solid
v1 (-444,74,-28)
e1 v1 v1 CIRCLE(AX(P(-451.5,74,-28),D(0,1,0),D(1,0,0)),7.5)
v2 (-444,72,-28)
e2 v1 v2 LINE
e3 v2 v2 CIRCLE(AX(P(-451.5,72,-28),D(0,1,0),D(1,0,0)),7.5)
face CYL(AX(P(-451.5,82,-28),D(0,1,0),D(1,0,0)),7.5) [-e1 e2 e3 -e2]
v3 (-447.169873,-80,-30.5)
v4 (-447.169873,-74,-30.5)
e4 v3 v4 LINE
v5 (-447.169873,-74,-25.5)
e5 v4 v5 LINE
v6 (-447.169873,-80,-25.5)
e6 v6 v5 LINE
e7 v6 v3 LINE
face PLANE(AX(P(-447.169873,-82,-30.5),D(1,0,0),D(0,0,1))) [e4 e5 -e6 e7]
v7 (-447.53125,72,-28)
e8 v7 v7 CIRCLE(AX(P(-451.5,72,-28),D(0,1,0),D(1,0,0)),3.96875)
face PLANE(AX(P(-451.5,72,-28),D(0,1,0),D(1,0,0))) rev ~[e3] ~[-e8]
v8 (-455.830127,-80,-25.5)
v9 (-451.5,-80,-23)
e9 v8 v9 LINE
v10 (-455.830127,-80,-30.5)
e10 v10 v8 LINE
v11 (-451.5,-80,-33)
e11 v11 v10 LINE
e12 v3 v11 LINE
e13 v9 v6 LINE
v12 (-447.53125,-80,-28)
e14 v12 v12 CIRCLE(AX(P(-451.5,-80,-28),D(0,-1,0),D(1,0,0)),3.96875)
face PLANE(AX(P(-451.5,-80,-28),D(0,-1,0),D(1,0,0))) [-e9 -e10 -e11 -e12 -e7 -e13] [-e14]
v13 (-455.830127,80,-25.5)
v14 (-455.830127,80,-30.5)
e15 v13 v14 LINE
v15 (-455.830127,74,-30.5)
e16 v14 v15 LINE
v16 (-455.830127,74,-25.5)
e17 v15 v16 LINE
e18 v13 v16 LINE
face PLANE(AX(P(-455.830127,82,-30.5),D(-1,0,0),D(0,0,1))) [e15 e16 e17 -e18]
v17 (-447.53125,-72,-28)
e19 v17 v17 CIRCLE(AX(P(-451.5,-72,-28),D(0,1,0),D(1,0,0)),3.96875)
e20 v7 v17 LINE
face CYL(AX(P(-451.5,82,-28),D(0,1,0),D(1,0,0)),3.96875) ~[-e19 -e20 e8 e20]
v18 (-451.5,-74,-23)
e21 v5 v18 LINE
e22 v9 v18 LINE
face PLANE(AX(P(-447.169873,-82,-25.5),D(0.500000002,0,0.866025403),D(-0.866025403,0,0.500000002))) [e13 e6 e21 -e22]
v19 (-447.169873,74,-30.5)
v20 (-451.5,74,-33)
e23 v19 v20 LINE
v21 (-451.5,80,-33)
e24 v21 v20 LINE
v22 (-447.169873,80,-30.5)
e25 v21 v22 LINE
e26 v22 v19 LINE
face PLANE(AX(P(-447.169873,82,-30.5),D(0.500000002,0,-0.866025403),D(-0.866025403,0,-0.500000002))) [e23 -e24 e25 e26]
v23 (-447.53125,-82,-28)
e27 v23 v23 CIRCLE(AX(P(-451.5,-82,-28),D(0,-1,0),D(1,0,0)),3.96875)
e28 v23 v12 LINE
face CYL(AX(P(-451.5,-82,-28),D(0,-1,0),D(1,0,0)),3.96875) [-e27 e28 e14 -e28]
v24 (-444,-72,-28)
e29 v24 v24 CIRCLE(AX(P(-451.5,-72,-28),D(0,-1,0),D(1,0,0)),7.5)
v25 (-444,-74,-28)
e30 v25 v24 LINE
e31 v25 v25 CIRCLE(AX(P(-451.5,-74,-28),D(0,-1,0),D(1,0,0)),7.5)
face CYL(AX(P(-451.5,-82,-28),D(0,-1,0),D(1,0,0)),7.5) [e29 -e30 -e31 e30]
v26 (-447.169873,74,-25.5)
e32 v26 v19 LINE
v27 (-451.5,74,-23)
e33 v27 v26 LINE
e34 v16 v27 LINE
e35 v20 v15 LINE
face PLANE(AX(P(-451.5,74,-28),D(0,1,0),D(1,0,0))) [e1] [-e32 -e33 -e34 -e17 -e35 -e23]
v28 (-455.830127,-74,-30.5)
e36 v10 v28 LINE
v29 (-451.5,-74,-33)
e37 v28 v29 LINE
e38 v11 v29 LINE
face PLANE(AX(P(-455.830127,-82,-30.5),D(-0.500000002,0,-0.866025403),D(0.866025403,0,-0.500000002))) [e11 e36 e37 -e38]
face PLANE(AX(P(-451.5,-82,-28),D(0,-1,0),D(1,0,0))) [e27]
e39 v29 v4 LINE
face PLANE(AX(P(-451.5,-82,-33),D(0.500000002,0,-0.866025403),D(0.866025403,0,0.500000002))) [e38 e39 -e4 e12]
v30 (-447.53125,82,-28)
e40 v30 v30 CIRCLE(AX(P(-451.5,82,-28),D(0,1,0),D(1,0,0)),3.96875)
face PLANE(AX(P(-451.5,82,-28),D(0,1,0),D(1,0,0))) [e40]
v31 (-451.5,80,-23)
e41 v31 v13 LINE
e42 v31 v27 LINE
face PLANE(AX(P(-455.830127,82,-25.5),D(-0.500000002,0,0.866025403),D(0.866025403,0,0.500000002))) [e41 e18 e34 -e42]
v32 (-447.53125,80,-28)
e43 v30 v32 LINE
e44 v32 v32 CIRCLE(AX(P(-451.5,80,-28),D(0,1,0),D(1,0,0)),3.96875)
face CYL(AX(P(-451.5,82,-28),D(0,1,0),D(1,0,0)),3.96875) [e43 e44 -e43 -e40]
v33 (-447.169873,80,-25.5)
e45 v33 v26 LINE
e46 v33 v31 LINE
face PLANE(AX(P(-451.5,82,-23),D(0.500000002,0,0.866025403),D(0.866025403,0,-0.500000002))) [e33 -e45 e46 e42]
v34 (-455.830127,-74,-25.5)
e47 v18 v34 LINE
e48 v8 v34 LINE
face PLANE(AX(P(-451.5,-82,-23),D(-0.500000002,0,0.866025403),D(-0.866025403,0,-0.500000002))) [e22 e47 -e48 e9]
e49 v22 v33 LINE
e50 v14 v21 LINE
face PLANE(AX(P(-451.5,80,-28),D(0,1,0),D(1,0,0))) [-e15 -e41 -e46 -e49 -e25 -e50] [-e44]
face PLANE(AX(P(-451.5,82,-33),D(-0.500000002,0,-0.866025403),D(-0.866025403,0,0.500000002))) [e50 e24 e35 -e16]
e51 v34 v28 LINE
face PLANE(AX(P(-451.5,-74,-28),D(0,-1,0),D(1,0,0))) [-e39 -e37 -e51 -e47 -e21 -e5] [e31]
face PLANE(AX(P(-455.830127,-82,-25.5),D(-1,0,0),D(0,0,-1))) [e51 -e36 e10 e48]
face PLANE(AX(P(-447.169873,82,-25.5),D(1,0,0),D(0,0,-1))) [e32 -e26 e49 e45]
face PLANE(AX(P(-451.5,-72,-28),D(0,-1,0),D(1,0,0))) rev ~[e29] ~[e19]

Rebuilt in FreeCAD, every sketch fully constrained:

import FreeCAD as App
import Part
import Sketcher
from FreeCAD import Vector
Q = App.Units.Quantity

doc = App.newDocument("Part")
body = doc.addObject("PartDesign::Body", "Body")

sketch1 = body.newObject("Sketcher::SketchObject", "Sketch")
sketch1.AttachmentSupport = (doc.getObject("XZ_Plane"), [""])
sketch1.MapMode = "FlatFace"
sketch1.AttachmentOffset = App.Placement(Vector(0, 0, -82), App.Rotation())
sketch1.addGeometry(Part.Circle(Vector(500, 56, 0), Vector(0, 0, 1), 3.96875), False)
sketch1.addConstraint([
    Sketcher.Constraint("DistanceX", -1, 1, 0, 3, 500.0),
    Sketcher.Constraint("DistanceY", -1, 1, 0, 3, 56.0),
    Sketcher.Constraint("Diameter", 0, 7.9375),
])
pad1 = body.newObject("PartDesign::Pad", "Pad")
pad1.Profile = sketch1
pad1.Length = 164

sketch2 = body.newObject("Sketcher::SketchObject", "Sketch001")
sketch2.AttachmentSupport = (doc.getObject("XZ_Plane"), [""])
sketch2.MapMode = "FlatFace"
sketch2.AttachmentOffset = App.Placement(Vector(0, 0, -82), App.Rotation())
sketch2.addGeometry(Part.Circle(Vector(500, 56, 0), Vector(0, 0, 1), 7.5), False)
sketch2.addConstraint([
    Sketcher.Constraint("Diameter", 0, 15.0),
    Sketcher.Constraint("DistanceX", -1, 1, 0, 3, 500.0),
    Sketcher.Constraint("DistanceY", -1, 1, 0, 3, 56.0),
])
pad2 = body.newObject("PartDesign::Pad", "Pad001")
pad2.Profile = sketch2
pad2.Length = 10

sketch3 = body.newObject("Sketcher::SketchObject", "Sketch002")
sketch3.AttachmentSupport = (doc.getObject("XZ_Plane"), [""])
sketch3.MapMode = "FlatFace"
sketch3.AttachmentOffset = App.Placement(Vector(0, 0, -82), App.Rotation())
sketch3.addGeometry([
    Part.Circle(Vector(500, 56, 0), Vector(0, 0, 1), 7.5),
    Part.LineSegment(Vector(495.669873, 53.5, 0), Vector(500, 51, 0)),
    Part.LineSegment(Vector(500, 51, 0), Vector(504.330127, 53.5, 0)),
    Part.LineSegment(Vector(504.330127, 53.5, 0), Vector(504.330127, 58.5, 0)),
    Part.LineSegment(Vector(504.330127, 58.5, 0), Vector(500, 61, 0)),
    Part.LineSegment(Vector(500, 61, 0), Vector(495.669873, 58.5, 0)),
    Part.LineSegment(Vector(495.669873, 58.5, 0), Vector(495.669873, 53.5, 0)),
], False)
sketch3.addConstraint([
    Sketcher.Constraint("Coincident", 1, 2, 2, 1),
    Sketcher.Constraint("Coincident", 2, 2, 3, 1),
    Sketcher.Constraint("Coincident", 3, 2, 4, 1),
    Sketcher.Constraint("Coincident", 4, 2, 5, 1),
    Sketcher.Constraint("Coincident", 5, 2, 6, 1),
    Sketcher.Constraint("Coincident", 6, 2, 1, 1),
    Sketcher.Constraint("Vertical", 3),
    Sketcher.Constraint("Vertical", 6),
    Sketcher.Constraint("Parallel", 1, 4),
    Sketcher.Constraint("Parallel", 2, 5),
    Sketcher.Constraint("Horizontal", 3, 2, 5, 2),
    Sketcher.Constraint("Horizontal", 2, 2, 6, 2),
    Sketcher.Constraint("Vertical", 0, 3, 1, 2),
    Sketcher.Constraint("Vertical", 1, 2, 4, 2),
    Sketcher.Constraint("Diameter", 0, 15.0),
    Sketcher.Constraint("DistanceY", 3, 1, 3, 2, 5.0),
    Sketcher.Constraint("Angle", 1, Q("-30 deg")),
    Sketcher.Constraint("Distance", 1, 5.0),
    Sketcher.Constraint("DistanceX", -1, 1, 0, 3, 500.0),
    Sketcher.Constraint("DistanceY", -1, 1, 0, 3, 56.0),
    Sketcher.Constraint("DistanceY", -1, 1, 1, 2, 51.0),
])
pocket1 = body.newObject("PartDesign::Pocket", "Pocket")
pocket1.Profile = sketch3
pocket1.Length = 8
pocket1.Reversed = True

sketch4 = body.newObject("Sketcher::SketchObject", "Sketch003")
sketch4.AttachmentSupport = (doc.getObject("XZ_Plane"), [""])
sketch4.MapMode = "FlatFace"
sketch4.AttachmentOffset = App.Placement(Vector(0, 0, -82), App.Rotation())
sketch4.addGeometry([
    Part.Circle(Vector(500, 56, 0), Vector(0, 0, 1), 7.5),
    Part.Circle(Vector(500, 56, 0), Vector(0, 0, 1), 3.96875),
], False)
sketch4.addConstraint([
    Sketcher.Constraint("Coincident", 1, 3, 0, 3),
    Sketcher.Constraint("Diameter", 0, 15.0),
    Sketcher.Constraint("DistanceX", -1, 1, 0, 3, 500.0),
    Sketcher.Constraint("DistanceY", -1, 1, 0, 3, 56.0),
    Sketcher.Constraint("Diameter", 1, 7.9375),
])
pocket2 = body.newObject("PartDesign::Pocket", "Pocket001")
pocket2.Profile = sketch4
pocket2.Length = 2
pocket2.Reversed = True

sketch5 = body.newObject("Sketcher::SketchObject", "Sketch004")
sketch5.AttachmentSupport = (doc.getObject("XZ_Plane"), [""])
sketch5.MapMode = "FlatFace"
sketch5.AttachmentOffset = App.Placement(Vector(0, 0, 82), App.Rotation())
sketch5.addGeometry(Part.Circle(Vector(500, 56, 0), Vector(0, 0, 1), 7.5), False)
sketch5.addConstraint([
    Sketcher.Constraint("Diameter", 0, 15.0),
    Sketcher.Constraint("DistanceX", -1, 1, 0, 3, 500.0),
    Sketcher.Constraint("DistanceY", -1, 1, 0, 3, 56.0),
])
pad3 = body.newObject("PartDesign::Pad", "Pad002")
pad3.Profile = sketch5
pad3.Length = 10
pad3.Reversed = True

sketch6 = body.newObject("Sketcher::SketchObject", "Sketch005")
sketch6.AttachmentSupport = (doc.getObject("XZ_Plane"), [""])
sketch6.MapMode = "FlatFace"
sketch6.AttachmentOffset = App.Placement(Vector(0, 0, 82), App.Rotation())
sketch6.addGeometry([
    Part.Circle(Vector(500, 56, 0), Vector(0, 0, 1), 7.5),
    Part.LineSegment(Vector(495.669873, 58.5, 0), Vector(500, 61, 0)),
    Part.LineSegment(Vector(500, 61, 0), Vector(504.330127, 58.5, 0)),
    Part.LineSegment(Vector(504.330127, 58.5, 0), Vector(504.330127, 53.5, 0)),
    Part.LineSegment(Vector(504.330127, 53.5, 0), Vector(500, 51, 0)),
    Part.LineSegment(Vector(500, 51, 0), Vector(495.669873, 53.5, 0)),
    Part.LineSegment(Vector(495.669873, 53.5, 0), Vector(495.669873, 58.5, 0)),
], False)
sketch6.addConstraint([
    Sketcher.Constraint("Coincident", 1, 2, 2, 1),
    Sketcher.Constraint("Coincident", 2, 2, 3, 1),
    Sketcher.Constraint("Coincident", 3, 2, 4, 1),
    Sketcher.Constraint("Coincident", 4, 2, 5, 1),
    Sketcher.Constraint("Coincident", 5, 2, 6, 1),
    Sketcher.Constraint("Coincident", 6, 2, 1, 1),
    Sketcher.Constraint("Vertical", 3),
    Sketcher.Constraint("Vertical", 6),
    Sketcher.Constraint("Parallel", 1, 4),
    Sketcher.Constraint("Parallel", 2, 5),
    Sketcher.Constraint("Horizontal", 3, 2, 5, 2),
    Sketcher.Constraint("Horizontal", 2, 2, 6, 2),
    Sketcher.Constraint("Vertical", 0, 3, 1, 2),
    Sketcher.Constraint("Vertical", 1, 2, 4, 2),
    Sketcher.Constraint("Diameter", 0, 15.0),
    Sketcher.Constraint("DistanceY", 3, 2, 3, 1, 5.0),
    Sketcher.Constraint("Angle", 1, Q("30 deg")),
    Sketcher.Constraint("Distance", 1, 5.0),
    Sketcher.Constraint("DistanceX", -1, 1, 0, 3, 500.0),
    Sketcher.Constraint("DistanceY", -1, 1, 0, 3, 56.0),
    Sketcher.Constraint("DistanceY", -1, 1, 1, 2, 61.0),
])
pocket3 = body.newObject("PartDesign::Pocket", "Pocket002")
pocket3.Profile = sketch6
pocket3.Length = 8

sketch7 = body.newObject("Sketcher::SketchObject", "Sketch006")
sketch7.AttachmentSupport = (doc.getObject("XZ_Plane"), [""])
sketch7.MapMode = "FlatFace"
sketch7.AttachmentOffset = App.Placement(Vector(0, 0, 82), App.Rotation())
sketch7.addGeometry([
    Part.Circle(Vector(500, 56, 0), Vector(0, 0, 1), 7.5),
    Part.Circle(Vector(500, 56, 0), Vector(0, 0, 1), 3.96875),
], False)
sketch7.addConstraint([
    Sketcher.Constraint("Coincident", 1, 3, 0, 3),
    Sketcher.Constraint("Diameter", 0, 15.0),
    Sketcher.Constraint("DistanceX", -1, 1, 0, 3, 500.0),
    Sketcher.Constraint("DistanceY", -1, 1, 0, 3, 56.0),
    Sketcher.Constraint("Diameter", 1, 7.9375),
])
pocket4 = body.newObject("PartDesign::Pocket", "Pocket003")
pocket4.Profile = sketch7
pocket4.Length = 2
body2 = doc.addObject("PartDesign::Body", "Body001")
doc.recompute()

body.Placement = App.Placement(Vector(-951.5, 0, -84), App.Rotation(Vector(0, 0, 1), 0))
boolean = body2.newObject("PartDesign::Boolean", "Boolean")
boolean.Type = "Fuse"
boolean.addObjects([body])

doc.recompute()
